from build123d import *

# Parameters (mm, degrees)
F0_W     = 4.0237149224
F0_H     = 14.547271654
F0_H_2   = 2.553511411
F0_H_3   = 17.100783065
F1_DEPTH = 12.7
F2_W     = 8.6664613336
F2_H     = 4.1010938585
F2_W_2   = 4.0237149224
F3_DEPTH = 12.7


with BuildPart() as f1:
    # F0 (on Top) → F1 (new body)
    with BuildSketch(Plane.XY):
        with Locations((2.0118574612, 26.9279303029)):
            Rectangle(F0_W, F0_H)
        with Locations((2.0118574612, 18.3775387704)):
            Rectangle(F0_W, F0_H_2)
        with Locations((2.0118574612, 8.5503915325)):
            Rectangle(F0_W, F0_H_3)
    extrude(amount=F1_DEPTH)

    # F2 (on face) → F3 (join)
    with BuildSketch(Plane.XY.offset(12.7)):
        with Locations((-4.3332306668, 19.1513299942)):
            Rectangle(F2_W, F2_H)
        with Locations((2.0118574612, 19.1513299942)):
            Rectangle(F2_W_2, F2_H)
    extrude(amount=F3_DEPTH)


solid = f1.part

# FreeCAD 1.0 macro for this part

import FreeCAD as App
import Part
import Sketcher

V = App.Vector
Q = App.Units.Quantity

doc = App.newDocument("Part")
body = doc.addObject("PartDesign::Body", "Body")

sketch1 = body.newObject("Sketcher::SketchObject", "Sketch")
sketch1.AttachmentSupport = (doc.getObject("XY_Plane"), [""])
sketch1.MapMode = "FlatFace"
sketch1.addGeometry(Part.LineSegment(V(0, 34.2, 0), V(0, 0, 0)), False)
sketch1.addGeometry(Part.LineSegment(V(0, 0, 0), V(4, 0, 0)), False)
sketch1.addGeometry(Part.LineSegment(V(4, 0, 0), V(4, 34.2, 0)), False)
sketch1.addGeometry(Part.LineSegment(V(4, 34.2, 0), V(0, 34.2, 0)), False)
sketch1.addConstraint(Sketcher.Constraint("Coincident", 0, 2, 1, 1))
sketch1.addConstraint(Sketcher.Constraint("Coincident", 1, 2, 2, 1))
sketch1.addConstraint(Sketcher.Constraint("Coincident", 2, 2, 3, 1))
sketch1.addConstraint(Sketcher.Constraint("Coincident", 3, 2, 0, 1))
sketch1.addConstraint(Sketcher.Constraint("Vertical", 0))
sketch1.addConstraint(Sketcher.Constraint("Horizontal", 1))
sketch1.addConstraint(Sketcher.Constraint("Vertical", 2))
sketch1.addConstraint(Sketcher.Constraint("Horizontal", 3))
sketch1.addConstraint(Sketcher.Constraint("Coincident", 0, 2, -1, 1))
sketch1.addConstraint(Sketcher.Constraint("DistanceX", 1, 1, 1, 2, Q("4.023715 mm")))
sketch1.addConstraint(Sketcher.Constraint("DistanceY", 0, 2, 0, 1, Q("34.201566 mm")))
pad1 = body.newObject("PartDesign::Pad", "Pad")
pad1.Profile = sketch1
pad1.Length = Q("0.5 in")

sketch2 = body.newObject("Sketcher::SketchObject", "Sketch001")
sketch2.AttachmentSupport = (doc.getObject("XY_Plane"), [""])
sketch2.MapMode = "FlatFace"
sketch2.AttachmentOffset = App.Placement(V(0, 0, 0.5 * 25.4), App.Rotation())
sketch2.addGeometry(Part.LineSegment(V(-8.7, 21.2, 0), V(-8.7, 17.1, 0)), False)
sketch2.addGeometry(Part.LineSegment(V(-8.7, 17.1, 0), V(4, 17.1, 0)), False)
sketch2.addGeometry(Part.LineSegment(V(4, 17.1, 0), V(4, 21.2, 0)), False)
sketch2.addGeometry(Part.LineSegment(V(4, 21.2, 0), V(-8.7, 21.2, 0)), False)
sketch2.addConstraint(Sketcher.Constraint("Coincident", 0, 2, 1, 1))
sketch2.addConstraint(Sketcher.Constraint("Coincident", 1, 2, 2, 1))
sketch2.addConstraint(Sketcher.Constraint("Coincident", 2, 2, 3, 1))
sketch2.addConstraint(Sketcher.Constraint("Coincident", 3, 2, 0, 1))
sketch2.addConstraint(Sketcher.Constraint("Vertical", 0))
sketch2.addConstraint(Sketcher.Constraint("Horizontal", 1))
sketch2.addConstraint(Sketcher.Constraint("Vertical", 2))
sketch2.addConstraint(Sketcher.Constraint("Horizontal", 3))
sketch2.addConstraint(Sketcher.Constraint("DistanceX", 1, 1, 1, 2, Q("12.690176 mm")))
sketch2.addConstraint(Sketcher.Constraint("DistanceY", 0, 2, 0, 1, Q("4.101094 mm")))
sketch2.addConstraint(Sketcher.Constraint("DistanceX", 0, 2, -1, 1, Q("8.666461 mm")))
sketch2.addConstraint(Sketcher.Constraint("DistanceY", -1, 1, 0, 2, Q("17.100783 mm")))
pad2 = body.newObject("PartDesign::Pad", "Pad001")
pad2.Profile = sketch2
pad2.Length = Q("0.5 in")

doc.recompute()
